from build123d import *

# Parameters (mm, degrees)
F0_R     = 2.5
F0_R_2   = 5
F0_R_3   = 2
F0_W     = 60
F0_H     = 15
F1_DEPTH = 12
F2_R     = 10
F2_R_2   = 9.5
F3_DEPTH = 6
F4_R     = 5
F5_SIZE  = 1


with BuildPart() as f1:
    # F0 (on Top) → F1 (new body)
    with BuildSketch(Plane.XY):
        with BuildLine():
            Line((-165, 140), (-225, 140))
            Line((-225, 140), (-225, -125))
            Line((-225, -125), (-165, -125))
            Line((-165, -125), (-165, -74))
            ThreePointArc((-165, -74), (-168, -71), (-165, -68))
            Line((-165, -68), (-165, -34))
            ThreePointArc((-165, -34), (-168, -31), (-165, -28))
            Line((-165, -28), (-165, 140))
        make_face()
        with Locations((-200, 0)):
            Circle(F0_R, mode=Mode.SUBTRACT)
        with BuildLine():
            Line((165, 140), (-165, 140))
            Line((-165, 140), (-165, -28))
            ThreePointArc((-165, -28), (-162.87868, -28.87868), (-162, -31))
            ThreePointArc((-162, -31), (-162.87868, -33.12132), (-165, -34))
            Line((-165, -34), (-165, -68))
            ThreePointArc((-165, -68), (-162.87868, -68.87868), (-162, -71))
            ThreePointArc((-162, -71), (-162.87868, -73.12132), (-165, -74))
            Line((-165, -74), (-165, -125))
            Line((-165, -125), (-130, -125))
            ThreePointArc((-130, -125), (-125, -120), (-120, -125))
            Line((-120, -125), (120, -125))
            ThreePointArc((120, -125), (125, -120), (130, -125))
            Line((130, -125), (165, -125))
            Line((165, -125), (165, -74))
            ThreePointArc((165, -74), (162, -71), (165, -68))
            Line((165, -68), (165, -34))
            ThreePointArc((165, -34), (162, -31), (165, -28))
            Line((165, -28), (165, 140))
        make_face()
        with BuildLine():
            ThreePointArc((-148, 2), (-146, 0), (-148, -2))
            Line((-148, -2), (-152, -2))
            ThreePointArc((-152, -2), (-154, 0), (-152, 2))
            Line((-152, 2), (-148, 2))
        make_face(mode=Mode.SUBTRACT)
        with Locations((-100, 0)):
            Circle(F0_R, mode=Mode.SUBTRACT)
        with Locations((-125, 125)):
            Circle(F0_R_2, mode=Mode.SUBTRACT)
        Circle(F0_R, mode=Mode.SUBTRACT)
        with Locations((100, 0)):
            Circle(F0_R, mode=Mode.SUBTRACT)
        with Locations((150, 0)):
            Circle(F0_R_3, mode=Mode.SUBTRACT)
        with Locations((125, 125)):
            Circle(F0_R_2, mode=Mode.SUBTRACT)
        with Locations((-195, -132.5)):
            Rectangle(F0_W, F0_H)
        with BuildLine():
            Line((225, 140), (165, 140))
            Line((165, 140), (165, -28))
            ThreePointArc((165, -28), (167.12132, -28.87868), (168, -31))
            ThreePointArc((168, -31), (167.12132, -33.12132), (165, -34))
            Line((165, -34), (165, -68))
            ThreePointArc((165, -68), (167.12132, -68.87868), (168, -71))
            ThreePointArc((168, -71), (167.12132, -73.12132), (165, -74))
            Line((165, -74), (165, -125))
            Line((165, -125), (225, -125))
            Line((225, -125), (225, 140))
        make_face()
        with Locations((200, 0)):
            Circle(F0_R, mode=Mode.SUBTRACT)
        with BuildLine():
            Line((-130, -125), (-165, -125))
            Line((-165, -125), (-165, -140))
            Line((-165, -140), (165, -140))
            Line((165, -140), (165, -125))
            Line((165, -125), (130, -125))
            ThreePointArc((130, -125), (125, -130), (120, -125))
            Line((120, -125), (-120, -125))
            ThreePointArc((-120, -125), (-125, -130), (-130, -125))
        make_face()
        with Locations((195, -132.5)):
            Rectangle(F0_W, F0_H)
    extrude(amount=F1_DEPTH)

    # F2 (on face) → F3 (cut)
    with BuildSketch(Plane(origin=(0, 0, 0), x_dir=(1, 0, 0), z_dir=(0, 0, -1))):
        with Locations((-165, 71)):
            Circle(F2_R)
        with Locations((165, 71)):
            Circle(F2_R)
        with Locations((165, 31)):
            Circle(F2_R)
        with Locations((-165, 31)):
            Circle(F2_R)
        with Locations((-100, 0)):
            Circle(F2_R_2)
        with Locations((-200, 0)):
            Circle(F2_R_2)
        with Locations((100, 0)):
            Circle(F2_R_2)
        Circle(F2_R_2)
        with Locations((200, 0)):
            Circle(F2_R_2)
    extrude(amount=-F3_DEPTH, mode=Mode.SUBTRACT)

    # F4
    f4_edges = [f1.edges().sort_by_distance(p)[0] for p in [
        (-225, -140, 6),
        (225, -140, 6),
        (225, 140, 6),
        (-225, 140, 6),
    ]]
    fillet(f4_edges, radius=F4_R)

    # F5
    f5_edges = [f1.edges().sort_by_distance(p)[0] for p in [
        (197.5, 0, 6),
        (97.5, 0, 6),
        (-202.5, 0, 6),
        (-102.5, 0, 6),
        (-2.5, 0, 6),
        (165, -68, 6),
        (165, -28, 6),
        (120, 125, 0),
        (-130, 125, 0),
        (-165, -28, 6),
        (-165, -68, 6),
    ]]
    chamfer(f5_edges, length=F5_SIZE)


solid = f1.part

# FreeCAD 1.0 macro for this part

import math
import FreeCAD as App
import Part
import Sketcher
Q = App.Units.Quantity


def edges_at(feature, points):
    """Names of the edges that pass closest to the given points."""
    edges = feature.Shape.Edges
    near = lambda p: min(range(len(edges)), key=lambda i: edges[i].distToShape(Part.Vertex(*p))[0])
    return sorted({f"Edge{near(p) + 1}" for p in points})


def add_polygon(sketch, points):
    """Adds a closed chain of lines whose ends are joined by coincident constraints."""
    first, n = sketch.GeometryCount, len(points)
    for a, b in zip(points, points[1:] + points[:1]):
        sketch.addGeometry(Part.LineSegment(App.Vector(*a, 0), App.Vector(*b, 0)), False)
    for i in range(n):
        sketch.addConstraint(Sketcher.Constraint("Coincident", first + i, 2, first + (i + 1) % n, 1))

doc = App.newDocument("Part")
body = doc.addObject("PartDesign::Body", "Body")

# Sketch on XY plane
sketch1 = body.newObject("Sketcher::SketchObject", "Sketch")
sketch1.AttachmentSupport = (doc.getObject("XY_Plane"), [""])
sketch1.MapMode = "FlatFace"
add_polygon(sketch1, [(-225, 140), (-225, -140), (225, -140), (225, 140)])  # lines 0-3
sketch1.addGeometry(Part.Circle(App.Vector(125, -125, 0), App.Vector(0, 0, 1), 5), False)  # 4
sketch1.addGeometry(Part.Circle(App.Vector(-125, -125, 0), App.Vector(0, 0, 1), 5), False)  # 5
sketch1.addGeometry(Part.ArcOfCircle(Part.Circle(App.Vector(-165, -71, 0), App.Vector(0, 0, 1), 3), math.radians(90), math.radians(270)), False)  # 6
sketch1.addGeometry(Part.ArcOfCircle(Part.Circle(App.Vector(-165, -71, 0), App.Vector(0, 0, 1), 3), math.radians(0), math.radians(90)), False)  # 7
sketch1.addGeometry(Part.ArcOfCircle(Part.Circle(App.Vector(-165, -71, 0), App.Vector(0, 0, 1), 3), math.radians(-90), math.radians(0)), False)  # 8
sketch1.addGeometry(Part.ArcOfCircle(Part.Circle(App.Vector(-165, -31, 0), App.Vector(0, 0, 1), 3), math.radians(90), math.radians(270)), False)  # 9
sketch1.addGeometry(Part.ArcOfCircle(Part.Circle(App.Vector(-165, -31, 0), App.Vector(0, 0, 1), 3), math.radians(0), math.radians(90)), False)  # 10
sketch1.addGeometry(Part.ArcOfCircle(Part.Circle(App.Vector(-165, -31, 0), App.Vector(0, 0, 1), 3), math.radians(-90), math.radians(0)), False)  # 11
sketch1.addGeometry(Part.Circle(App.Vector(-200, 0, 0), App.Vector(0, 0, 1), 2.5), False)  # 12
sketch1.addGeometry(Part.LineSegment(App.Vector(-152, 2, 0), App.Vector(-148, 2, 0)), False)  # 13
sketch1.addGeometry(Part.ArcOfCircle(Part.Circle(App.Vector(-148, 0, 0), App.Vector(0, 0, 1), 2), math.radians(-90), math.radians(90)), False)  # 14
sketch1.addGeometry(Part.LineSegment(App.Vector(-148, -2, 0), App.Vector(-152, -2, 0)), False)  # 15
sketch1.addGeometry(Part.ArcOfCircle(Part.Circle(App.Vector(-152, 0, 0), App.Vector(0, 0, 1), 2), math.radians(90), math.radians(270)), False)  # 16
sketch1.addGeometry(Part.Circle(App.Vector(-100, 0, 0), App.Vector(0, 0, 1), 2.5), False)  # 17
sketch1.addGeometry(Part.ArcOfCircle(Part.Circle(App.Vector(165, -71, 0), App.Vector(0, 0, 1), 3), math.radians(90), math.radians(270)), False)  # 18
sketch1.addGeometry(Part.ArcOfCircle(Part.Circle(App.Vector(165, -71, 0), App.Vector(0, 0, 1), 3), math.radians(0), math.radians(90)), False)  # 19
sketch1.addGeometry(Part.ArcOfCircle(Part.Circle(App.Vector(165, -71, 0), App.Vector(0, 0, 1), 3), math.radians(-90), math.radians(0)), False)  # 20
sketch1.addGeometry(Part.ArcOfCircle(Part.Circle(App.Vector(165, -31, 0), App.Vector(0, 0, 1), 3), math.radians(90), math.radians(270)), False)  # 21
sketch1.addGeometry(Part.ArcOfCircle(Part.Circle(App.Vector(165, -31, 0), App.Vector(0, 0, 1), 3), math.radians(0), math.radians(90)), False)  # 22
sketch1.addGeometry(Part.ArcOfCircle(Part.Circle(App.Vector(165, -31, 0), App.Vector(0, 0, 1), 3), math.radians(-90), math.radians(0)), False)  # 23
sketch1.addGeometry(Part.Circle(App.Vector(0, 0, 0), App.Vector(0, 0, 1), 2.5), False)  # 24
sketch1.addGeometry(Part.Circle(App.Vector(100, 0, 0), App.Vector(0, 0, 1), 2.5), False)  # 25
sketch1.addGeometry(Part.Circle(App.Vector(150, 0, 0), App.Vector(0, 0, 1), 2), False)  # 26
sketch1.addGeometry(Part.Circle(App.Vector(200, 0, 0), App.Vector(0, 0, 1), 2.5), False)  # 27
sketch1.addGeometry(Part.Circle(App.Vector(-125, 125, 0), App.Vector(0, 0, 1), 5), False)  # 28
sketch1.addGeometry(Part.Circle(App.Vector(125, 125, 0), App.Vector(0, 0, 1), 5), False)  # 29
sketch1.addConstraint(Sketcher.Constraint("Tangent", 6, 1, 7, 2))
sketch1.addConstraint(Sketcher.Constraint("Tangent", 7, 1, 8, 2))
sketch1.addConstraint(Sketcher.Constraint("Tangent", 8, 1, 6, 2))
sketch1.addConstraint(Sketcher.Constraint("Tangent", 9, 1, 10, 2))
sketch1.addConstraint(Sketcher.Constraint("Tangent", 10, 1, 11, 2))
sketch1.addConstraint(Sketcher.Constraint("Tangent", 11, 1, 9, 2))
sketch1.addConstraint(Sketcher.Constraint("Tangent", 13, 2, 14, 2))
sketch1.addConstraint(Sketcher.Constraint("Tangent", 14, 1, 15, 1))
sketch1.addConstraint(Sketcher.Constraint("Tangent", 15, 2, 16, 2))
sketch1.addConstraint(Sketcher.Constraint("Tangent", 16, 1, 13, 1))
sketch1.addConstraint(Sketcher.Constraint("Tangent", 18, 1, 19, 2))
sketch1.addConstraint(Sketcher.Constraint("Tangent", 19, 1, 20, 2))
sketch1.addConstraint(Sketcher.Constraint("Tangent", 20, 1, 18, 2))
sketch1.addConstraint(Sketcher.Constraint("Tangent", 21, 1, 22, 2))
sketch1.addConstraint(Sketcher.Constraint("Tangent", 22, 1, 23, 2))
sketch1.addConstraint(Sketcher.Constraint("Tangent", 23, 1, 21, 2))
sketch1.addConstraint(Sketcher.Constraint("Vertical", 0))
sketch1.addConstraint(Sketcher.Constraint("Horizontal", 1))
sketch1.addConstraint(Sketcher.Constraint("Vertical", 2))
sketch1.addConstraint(Sketcher.Constraint("Horizontal", 3))
sketch1.addConstraint(Sketcher.Constraint("Horizontal", 13))
sketch1.addConstraint(Sketcher.Constraint("Horizontal", 15))
sketch1.addConstraint(Sketcher.Constraint("Coincident", 24, 3, -1, 1))
sketch1.addConstraint(Sketcher.Constraint("Equal", 4, 5))
sketch1.addConstraint(Sketcher.Constraint("Equal", 8, 9))
sketch1.addConstraint(Sketcher.Constraint("Equal", 12, 17))
sketch1.addConstraint(Sketcher.Constraint("Equal", 11, 18))
sketch1.addConstraint(Sketcher.Constraint("Equal", 20, 21))
sketch1.addConstraint(Sketcher.Constraint("Equal", 17, 24))
sketch1.addConstraint(Sketcher.Constraint("Equal", 24, 25))
sketch1.addConstraint(Sketcher.Constraint("Equal", 16, 26))
sketch1.addConstraint(Sketcher.Constraint("Equal", 25, 27))
sketch1.addConstraint(Sketcher.Constraint("Equal", 5, 28))
sketch1.addConstraint(Sketcher.Constraint("Equal", 28, 29))
sketch1.addConstraint(Sketcher.Constraint("Symmetric", 17, 3, 25, 3, -1, 1))
sketch1.addConstraint(Sketcher.Constraint("Symmetric", 12, 3, 27, 3, -1, 1))
sketch1.addConstraint(Sketcher.Constraint("Symmetric", 4, 3, 28, 3, -1, 1))
sketch1.addConstraint(Sketcher.Constraint("Symmetric", 5, 3, 29, 3, -1, 1))
sketch1.addConstraint(Sketcher.Constraint("Symmetric", 0, 2, 2, 2, -1, 1))
sketch1.addConstraint(Sketcher.Constraint("Symmetric", 4, 3, 5, 3, -2))
sketch1.addConstraint(Sketcher.Constraint("Symmetric", 6, 3, 18, 3, -2))
sketch1.addConstraint(Sketcher.Constraint("Symmetric", 9, 3, 21, 3, -2))
sketch1.addConstraint(Sketcher.Constraint("PointOnObject", 12, 3, -1))
sketch1.addConstraint(Sketcher.Constraint("PointOnObject", 14, 3, -1))
sketch1.addConstraint(Sketcher.Constraint("PointOnObject", 17, 3, -1))
sketch1.addConstraint(Sketcher.Constraint("PointOnObject", 26, 3, -1))
sketch1.addConstraint(Sketcher.Constraint("Horizontal", 20, 3, 7, 1))
sketch1.addConstraint(Sketcher.Constraint("Horizontal", 23, 3, 10, 1))
sketch1.addConstraint(Sketcher.Constraint("Horizontal", 7, 1, 19, 1))
sketch1.addConstraint(Sketcher.Constraint("Horizontal", 10, 1, 22, 1))
sketch1.addConstraint(Sketcher.Constraint("Vertical", 8, 3, 9, 3))
sketch1.addConstraint(Sketcher.Constraint("Vertical", 11, 3, 6, 1))
sketch1.addConstraint(Sketcher.Constraint("Vertical", 6, 1, 8, 1))
sketch1.addConstraint(Sketcher.Constraint("Vertical", 8, 1, 9, 1))
sketch1.addConstraint(Sketcher.Constraint("Vertical", 9, 1, 11, 1))
sketch1.addConstraint(Sketcher.Constraint("Vertical", 23, 3, 18, 1))
sketch1.addConstraint(Sketcher.Constraint("Vertical", 18, 1, 20, 1))
sketch1.addConstraint(Sketcher.Constraint("Vertical", 20, 1, 21, 1))
sketch1.addConstraint(Sketcher.Constraint("Vertical", 21, 1, 23, 1))
sketch1.addConstraint(Sketcher.Constraint("Diameter", 4, Q("10 mm")))
sketch1.addConstraint(Sketcher.Constraint("Diameter", 12, Q("5 mm")))
sketch1.addConstraint(Sketcher.Constraint("Diameter", 26, Q("4 mm")))
sketch1.addConstraint(Sketcher.Constraint("Radius", 6, Q("3 mm")))
sketch1.addConstraint(Sketcher.Constraint("DistanceX", 1, 1, 1, 2, Q("450 mm")))
sketch1.addConstraint(Sketcher.Constraint("DistanceX", 13, 1, 13, 2, Q("4 mm")))
sketch1.addConstraint(Sketcher.Constraint("DistanceY", 0, 2, 0, 1, Q("280 mm")))
sketch1.addConstraint(Sketcher.Constraint("DistanceX", -1, 1, 4, 3, Q("125 mm")))
sketch1.addConstraint(Sketcher.Constraint("DistanceY", 4, 3, -1, 1, Q("125 mm")))
sketch1.addConstraint(Sketcher.Constraint("DistanceX", 6, 3, -1, 1, Q("165 mm")))
sketch1.addConstraint(Sketcher.Constraint("DistanceY", 6, 3, -1, 1, Q("71 mm")))
sketch1.addConstraint(Sketcher.Constraint("DistanceY", 9, 3, -1, 1, Q("31 mm")))
sketch1.addConstraint(Sketcher.Constraint("DistanceX", 12, 3, -1, 1, Q("200 mm")))
sketch1.addConstraint(Sketcher.Constraint("DistanceX", 14, 3, -1, 1, Q("148 mm")))
sketch1.addConstraint(Sketcher.Constraint("DistanceX", 17, 3, -1, 1, Q("100 mm")))
sketch1.addConstraint(Sketcher.Constraint("DistanceX", -1, 1, 26, 3, Q("150 mm")))
pad1 = body.newObject("PartDesign::Pad", "Pad")
pad1.Profile = sketch1
pad1.Length = 12

# Sketch on XY plane
sketch2 = body.newObject("Sketcher::SketchObject", "Sketch001")
sketch2.AttachmentSupport = (doc.getObject("XY_Plane"), [""])
sketch2.MapMode = "FlatFace"
sketch2.addGeometry(Part.Circle(App.Vector(-165, -71, 0), App.Vector(0, 0, 1), 10), False)
sketch2.addGeometry(Part.Circle(App.Vector(165, -71, 0), App.Vector(0, 0, 1), 10), False)
sketch2.addGeometry(Part.Circle(App.Vector(165, -31, 0), App.Vector(0, 0, 1), 10), False)
sketch2.addGeometry(Part.Circle(App.Vector(-165, -31, 0), App.Vector(0, 0, 1), 10), False)
sketch2.addGeometry(Part.Circle(App.Vector(-100, 0, 0), App.Vector(0, 0, 1), 10), False)
sketch2.addGeometry(Part.Circle(App.Vector(-200, 0, 0), App.Vector(0, 0, 1), 10), False)
sketch2.addGeometry(Part.Circle(App.Vector(100, 0, 0), App.Vector(0, 0, 1), 10), False)
sketch2.addGeometry(Part.Circle(App.Vector(0, 0, 0), App.Vector(0, 0, 1), 10), False)
sketch2.addGeometry(Part.Circle(App.Vector(200, 0, 0), App.Vector(0, 0, 1), 10), False)
sketch2.addConstraint(Sketcher.Constraint("Coincident", 7, 3, -1, 1))
sketch2.addConstraint(Sketcher.Constraint("Equal", 0, 1))
sketch2.addConstraint(Sketcher.Constraint("Equal", 1, 2))
sketch2.addConstraint(Sketcher.Constraint("Equal", 2, 3))
sketch2.addConstraint(Sketcher.Constraint("Equal", 4, 5))
sketch2.addConstraint(Sketcher.Constraint("Equal", 5, 6))
sketch2.addConstraint(Sketcher.Constraint("Equal", 6, 7))
sketch2.addConstraint(Sketcher.Constraint("Equal", 7, 8))
sketch2.addConstraint(Sketcher.Constraint("Symmetric", 4, 3, 6, 3, -1, 1))
sketch2.addConstraint(Sketcher.Constraint("Symmetric", 5, 3, 8, 3, -1, 1))
sketch2.addConstraint(Sketcher.Constraint("Symmetric", 0, 3, 1, 3, -2))
sketch2.addConstraint(Sketcher.Constraint("Symmetric", 2, 3, 3, 3, -2))
sketch2.addConstraint(Sketcher.Constraint("PointOnObject", 4, 3, -1))
sketch2.addConstraint(Sketcher.Constraint("PointOnObject", 5, 3, -1))
sketch2.addConstraint(Sketcher.Constraint("Vertical", 1, 3, 2, 3))
sketch2.addConstraint(Sketcher.Constraint("Diameter", 0, Q("20 mm")))
sketch2.addConstraint(Sketcher.Constraint("Diameter", 4, Q("19 mm")))
sketch2.addConstraint(Sketcher.Constraint("DistanceX", 0, 3, -1, 1, Q("165 mm")))
sketch2.addConstraint(Sketcher.Constraint("DistanceY", 0, 3, -1, 1, Q("71 mm")))
sketch2.addConstraint(Sketcher.Constraint("DistanceY", 2, 3, -1, 1, Q("31 mm")))
sketch2.addConstraint(Sketcher.Constraint("DistanceX", 4, 3, -1, 1, Q("100 mm")))
sketch2.addConstraint(Sketcher.Constraint("DistanceX", 5, 3, -1, 1, Q("200 mm")))
pocket1 = body.newObject("PartDesign::Pocket", "Pocket")
pocket1.Profile = sketch2
pocket1.Length = 6
pocket1.Reversed = True
doc.recompute()

fillet = body.newObject("PartDesign::Fillet", "Fillet")
fillet.Base = (pocket1, edges_at(pocket1, [
    (-225, -140, 6),
    (225, -140, 6),
    (225, 140, 6),
    (-225, 140, 6),
]))
fillet.Radius = 5
doc.recompute()

chamfer = body.newObject("PartDesign::Chamfer", "Chamfer")
chamfer.Base = (fillet, edges_at(fillet, [
    (197.5, 0, 6),
    (97.5, 0, 6),
    (-202.5, 0, 6),
    (-102.5, 0, 6),
    (-2.5, 0, 6),
    (162, -71, 6),
    (162, -31, 6),
    (120, 125, 0),
    (-130, 125, 0),
    (-168, -31, 6),
    (-168, -71, 6),
]))
chamfer.Size = 1

doc.recompute()
